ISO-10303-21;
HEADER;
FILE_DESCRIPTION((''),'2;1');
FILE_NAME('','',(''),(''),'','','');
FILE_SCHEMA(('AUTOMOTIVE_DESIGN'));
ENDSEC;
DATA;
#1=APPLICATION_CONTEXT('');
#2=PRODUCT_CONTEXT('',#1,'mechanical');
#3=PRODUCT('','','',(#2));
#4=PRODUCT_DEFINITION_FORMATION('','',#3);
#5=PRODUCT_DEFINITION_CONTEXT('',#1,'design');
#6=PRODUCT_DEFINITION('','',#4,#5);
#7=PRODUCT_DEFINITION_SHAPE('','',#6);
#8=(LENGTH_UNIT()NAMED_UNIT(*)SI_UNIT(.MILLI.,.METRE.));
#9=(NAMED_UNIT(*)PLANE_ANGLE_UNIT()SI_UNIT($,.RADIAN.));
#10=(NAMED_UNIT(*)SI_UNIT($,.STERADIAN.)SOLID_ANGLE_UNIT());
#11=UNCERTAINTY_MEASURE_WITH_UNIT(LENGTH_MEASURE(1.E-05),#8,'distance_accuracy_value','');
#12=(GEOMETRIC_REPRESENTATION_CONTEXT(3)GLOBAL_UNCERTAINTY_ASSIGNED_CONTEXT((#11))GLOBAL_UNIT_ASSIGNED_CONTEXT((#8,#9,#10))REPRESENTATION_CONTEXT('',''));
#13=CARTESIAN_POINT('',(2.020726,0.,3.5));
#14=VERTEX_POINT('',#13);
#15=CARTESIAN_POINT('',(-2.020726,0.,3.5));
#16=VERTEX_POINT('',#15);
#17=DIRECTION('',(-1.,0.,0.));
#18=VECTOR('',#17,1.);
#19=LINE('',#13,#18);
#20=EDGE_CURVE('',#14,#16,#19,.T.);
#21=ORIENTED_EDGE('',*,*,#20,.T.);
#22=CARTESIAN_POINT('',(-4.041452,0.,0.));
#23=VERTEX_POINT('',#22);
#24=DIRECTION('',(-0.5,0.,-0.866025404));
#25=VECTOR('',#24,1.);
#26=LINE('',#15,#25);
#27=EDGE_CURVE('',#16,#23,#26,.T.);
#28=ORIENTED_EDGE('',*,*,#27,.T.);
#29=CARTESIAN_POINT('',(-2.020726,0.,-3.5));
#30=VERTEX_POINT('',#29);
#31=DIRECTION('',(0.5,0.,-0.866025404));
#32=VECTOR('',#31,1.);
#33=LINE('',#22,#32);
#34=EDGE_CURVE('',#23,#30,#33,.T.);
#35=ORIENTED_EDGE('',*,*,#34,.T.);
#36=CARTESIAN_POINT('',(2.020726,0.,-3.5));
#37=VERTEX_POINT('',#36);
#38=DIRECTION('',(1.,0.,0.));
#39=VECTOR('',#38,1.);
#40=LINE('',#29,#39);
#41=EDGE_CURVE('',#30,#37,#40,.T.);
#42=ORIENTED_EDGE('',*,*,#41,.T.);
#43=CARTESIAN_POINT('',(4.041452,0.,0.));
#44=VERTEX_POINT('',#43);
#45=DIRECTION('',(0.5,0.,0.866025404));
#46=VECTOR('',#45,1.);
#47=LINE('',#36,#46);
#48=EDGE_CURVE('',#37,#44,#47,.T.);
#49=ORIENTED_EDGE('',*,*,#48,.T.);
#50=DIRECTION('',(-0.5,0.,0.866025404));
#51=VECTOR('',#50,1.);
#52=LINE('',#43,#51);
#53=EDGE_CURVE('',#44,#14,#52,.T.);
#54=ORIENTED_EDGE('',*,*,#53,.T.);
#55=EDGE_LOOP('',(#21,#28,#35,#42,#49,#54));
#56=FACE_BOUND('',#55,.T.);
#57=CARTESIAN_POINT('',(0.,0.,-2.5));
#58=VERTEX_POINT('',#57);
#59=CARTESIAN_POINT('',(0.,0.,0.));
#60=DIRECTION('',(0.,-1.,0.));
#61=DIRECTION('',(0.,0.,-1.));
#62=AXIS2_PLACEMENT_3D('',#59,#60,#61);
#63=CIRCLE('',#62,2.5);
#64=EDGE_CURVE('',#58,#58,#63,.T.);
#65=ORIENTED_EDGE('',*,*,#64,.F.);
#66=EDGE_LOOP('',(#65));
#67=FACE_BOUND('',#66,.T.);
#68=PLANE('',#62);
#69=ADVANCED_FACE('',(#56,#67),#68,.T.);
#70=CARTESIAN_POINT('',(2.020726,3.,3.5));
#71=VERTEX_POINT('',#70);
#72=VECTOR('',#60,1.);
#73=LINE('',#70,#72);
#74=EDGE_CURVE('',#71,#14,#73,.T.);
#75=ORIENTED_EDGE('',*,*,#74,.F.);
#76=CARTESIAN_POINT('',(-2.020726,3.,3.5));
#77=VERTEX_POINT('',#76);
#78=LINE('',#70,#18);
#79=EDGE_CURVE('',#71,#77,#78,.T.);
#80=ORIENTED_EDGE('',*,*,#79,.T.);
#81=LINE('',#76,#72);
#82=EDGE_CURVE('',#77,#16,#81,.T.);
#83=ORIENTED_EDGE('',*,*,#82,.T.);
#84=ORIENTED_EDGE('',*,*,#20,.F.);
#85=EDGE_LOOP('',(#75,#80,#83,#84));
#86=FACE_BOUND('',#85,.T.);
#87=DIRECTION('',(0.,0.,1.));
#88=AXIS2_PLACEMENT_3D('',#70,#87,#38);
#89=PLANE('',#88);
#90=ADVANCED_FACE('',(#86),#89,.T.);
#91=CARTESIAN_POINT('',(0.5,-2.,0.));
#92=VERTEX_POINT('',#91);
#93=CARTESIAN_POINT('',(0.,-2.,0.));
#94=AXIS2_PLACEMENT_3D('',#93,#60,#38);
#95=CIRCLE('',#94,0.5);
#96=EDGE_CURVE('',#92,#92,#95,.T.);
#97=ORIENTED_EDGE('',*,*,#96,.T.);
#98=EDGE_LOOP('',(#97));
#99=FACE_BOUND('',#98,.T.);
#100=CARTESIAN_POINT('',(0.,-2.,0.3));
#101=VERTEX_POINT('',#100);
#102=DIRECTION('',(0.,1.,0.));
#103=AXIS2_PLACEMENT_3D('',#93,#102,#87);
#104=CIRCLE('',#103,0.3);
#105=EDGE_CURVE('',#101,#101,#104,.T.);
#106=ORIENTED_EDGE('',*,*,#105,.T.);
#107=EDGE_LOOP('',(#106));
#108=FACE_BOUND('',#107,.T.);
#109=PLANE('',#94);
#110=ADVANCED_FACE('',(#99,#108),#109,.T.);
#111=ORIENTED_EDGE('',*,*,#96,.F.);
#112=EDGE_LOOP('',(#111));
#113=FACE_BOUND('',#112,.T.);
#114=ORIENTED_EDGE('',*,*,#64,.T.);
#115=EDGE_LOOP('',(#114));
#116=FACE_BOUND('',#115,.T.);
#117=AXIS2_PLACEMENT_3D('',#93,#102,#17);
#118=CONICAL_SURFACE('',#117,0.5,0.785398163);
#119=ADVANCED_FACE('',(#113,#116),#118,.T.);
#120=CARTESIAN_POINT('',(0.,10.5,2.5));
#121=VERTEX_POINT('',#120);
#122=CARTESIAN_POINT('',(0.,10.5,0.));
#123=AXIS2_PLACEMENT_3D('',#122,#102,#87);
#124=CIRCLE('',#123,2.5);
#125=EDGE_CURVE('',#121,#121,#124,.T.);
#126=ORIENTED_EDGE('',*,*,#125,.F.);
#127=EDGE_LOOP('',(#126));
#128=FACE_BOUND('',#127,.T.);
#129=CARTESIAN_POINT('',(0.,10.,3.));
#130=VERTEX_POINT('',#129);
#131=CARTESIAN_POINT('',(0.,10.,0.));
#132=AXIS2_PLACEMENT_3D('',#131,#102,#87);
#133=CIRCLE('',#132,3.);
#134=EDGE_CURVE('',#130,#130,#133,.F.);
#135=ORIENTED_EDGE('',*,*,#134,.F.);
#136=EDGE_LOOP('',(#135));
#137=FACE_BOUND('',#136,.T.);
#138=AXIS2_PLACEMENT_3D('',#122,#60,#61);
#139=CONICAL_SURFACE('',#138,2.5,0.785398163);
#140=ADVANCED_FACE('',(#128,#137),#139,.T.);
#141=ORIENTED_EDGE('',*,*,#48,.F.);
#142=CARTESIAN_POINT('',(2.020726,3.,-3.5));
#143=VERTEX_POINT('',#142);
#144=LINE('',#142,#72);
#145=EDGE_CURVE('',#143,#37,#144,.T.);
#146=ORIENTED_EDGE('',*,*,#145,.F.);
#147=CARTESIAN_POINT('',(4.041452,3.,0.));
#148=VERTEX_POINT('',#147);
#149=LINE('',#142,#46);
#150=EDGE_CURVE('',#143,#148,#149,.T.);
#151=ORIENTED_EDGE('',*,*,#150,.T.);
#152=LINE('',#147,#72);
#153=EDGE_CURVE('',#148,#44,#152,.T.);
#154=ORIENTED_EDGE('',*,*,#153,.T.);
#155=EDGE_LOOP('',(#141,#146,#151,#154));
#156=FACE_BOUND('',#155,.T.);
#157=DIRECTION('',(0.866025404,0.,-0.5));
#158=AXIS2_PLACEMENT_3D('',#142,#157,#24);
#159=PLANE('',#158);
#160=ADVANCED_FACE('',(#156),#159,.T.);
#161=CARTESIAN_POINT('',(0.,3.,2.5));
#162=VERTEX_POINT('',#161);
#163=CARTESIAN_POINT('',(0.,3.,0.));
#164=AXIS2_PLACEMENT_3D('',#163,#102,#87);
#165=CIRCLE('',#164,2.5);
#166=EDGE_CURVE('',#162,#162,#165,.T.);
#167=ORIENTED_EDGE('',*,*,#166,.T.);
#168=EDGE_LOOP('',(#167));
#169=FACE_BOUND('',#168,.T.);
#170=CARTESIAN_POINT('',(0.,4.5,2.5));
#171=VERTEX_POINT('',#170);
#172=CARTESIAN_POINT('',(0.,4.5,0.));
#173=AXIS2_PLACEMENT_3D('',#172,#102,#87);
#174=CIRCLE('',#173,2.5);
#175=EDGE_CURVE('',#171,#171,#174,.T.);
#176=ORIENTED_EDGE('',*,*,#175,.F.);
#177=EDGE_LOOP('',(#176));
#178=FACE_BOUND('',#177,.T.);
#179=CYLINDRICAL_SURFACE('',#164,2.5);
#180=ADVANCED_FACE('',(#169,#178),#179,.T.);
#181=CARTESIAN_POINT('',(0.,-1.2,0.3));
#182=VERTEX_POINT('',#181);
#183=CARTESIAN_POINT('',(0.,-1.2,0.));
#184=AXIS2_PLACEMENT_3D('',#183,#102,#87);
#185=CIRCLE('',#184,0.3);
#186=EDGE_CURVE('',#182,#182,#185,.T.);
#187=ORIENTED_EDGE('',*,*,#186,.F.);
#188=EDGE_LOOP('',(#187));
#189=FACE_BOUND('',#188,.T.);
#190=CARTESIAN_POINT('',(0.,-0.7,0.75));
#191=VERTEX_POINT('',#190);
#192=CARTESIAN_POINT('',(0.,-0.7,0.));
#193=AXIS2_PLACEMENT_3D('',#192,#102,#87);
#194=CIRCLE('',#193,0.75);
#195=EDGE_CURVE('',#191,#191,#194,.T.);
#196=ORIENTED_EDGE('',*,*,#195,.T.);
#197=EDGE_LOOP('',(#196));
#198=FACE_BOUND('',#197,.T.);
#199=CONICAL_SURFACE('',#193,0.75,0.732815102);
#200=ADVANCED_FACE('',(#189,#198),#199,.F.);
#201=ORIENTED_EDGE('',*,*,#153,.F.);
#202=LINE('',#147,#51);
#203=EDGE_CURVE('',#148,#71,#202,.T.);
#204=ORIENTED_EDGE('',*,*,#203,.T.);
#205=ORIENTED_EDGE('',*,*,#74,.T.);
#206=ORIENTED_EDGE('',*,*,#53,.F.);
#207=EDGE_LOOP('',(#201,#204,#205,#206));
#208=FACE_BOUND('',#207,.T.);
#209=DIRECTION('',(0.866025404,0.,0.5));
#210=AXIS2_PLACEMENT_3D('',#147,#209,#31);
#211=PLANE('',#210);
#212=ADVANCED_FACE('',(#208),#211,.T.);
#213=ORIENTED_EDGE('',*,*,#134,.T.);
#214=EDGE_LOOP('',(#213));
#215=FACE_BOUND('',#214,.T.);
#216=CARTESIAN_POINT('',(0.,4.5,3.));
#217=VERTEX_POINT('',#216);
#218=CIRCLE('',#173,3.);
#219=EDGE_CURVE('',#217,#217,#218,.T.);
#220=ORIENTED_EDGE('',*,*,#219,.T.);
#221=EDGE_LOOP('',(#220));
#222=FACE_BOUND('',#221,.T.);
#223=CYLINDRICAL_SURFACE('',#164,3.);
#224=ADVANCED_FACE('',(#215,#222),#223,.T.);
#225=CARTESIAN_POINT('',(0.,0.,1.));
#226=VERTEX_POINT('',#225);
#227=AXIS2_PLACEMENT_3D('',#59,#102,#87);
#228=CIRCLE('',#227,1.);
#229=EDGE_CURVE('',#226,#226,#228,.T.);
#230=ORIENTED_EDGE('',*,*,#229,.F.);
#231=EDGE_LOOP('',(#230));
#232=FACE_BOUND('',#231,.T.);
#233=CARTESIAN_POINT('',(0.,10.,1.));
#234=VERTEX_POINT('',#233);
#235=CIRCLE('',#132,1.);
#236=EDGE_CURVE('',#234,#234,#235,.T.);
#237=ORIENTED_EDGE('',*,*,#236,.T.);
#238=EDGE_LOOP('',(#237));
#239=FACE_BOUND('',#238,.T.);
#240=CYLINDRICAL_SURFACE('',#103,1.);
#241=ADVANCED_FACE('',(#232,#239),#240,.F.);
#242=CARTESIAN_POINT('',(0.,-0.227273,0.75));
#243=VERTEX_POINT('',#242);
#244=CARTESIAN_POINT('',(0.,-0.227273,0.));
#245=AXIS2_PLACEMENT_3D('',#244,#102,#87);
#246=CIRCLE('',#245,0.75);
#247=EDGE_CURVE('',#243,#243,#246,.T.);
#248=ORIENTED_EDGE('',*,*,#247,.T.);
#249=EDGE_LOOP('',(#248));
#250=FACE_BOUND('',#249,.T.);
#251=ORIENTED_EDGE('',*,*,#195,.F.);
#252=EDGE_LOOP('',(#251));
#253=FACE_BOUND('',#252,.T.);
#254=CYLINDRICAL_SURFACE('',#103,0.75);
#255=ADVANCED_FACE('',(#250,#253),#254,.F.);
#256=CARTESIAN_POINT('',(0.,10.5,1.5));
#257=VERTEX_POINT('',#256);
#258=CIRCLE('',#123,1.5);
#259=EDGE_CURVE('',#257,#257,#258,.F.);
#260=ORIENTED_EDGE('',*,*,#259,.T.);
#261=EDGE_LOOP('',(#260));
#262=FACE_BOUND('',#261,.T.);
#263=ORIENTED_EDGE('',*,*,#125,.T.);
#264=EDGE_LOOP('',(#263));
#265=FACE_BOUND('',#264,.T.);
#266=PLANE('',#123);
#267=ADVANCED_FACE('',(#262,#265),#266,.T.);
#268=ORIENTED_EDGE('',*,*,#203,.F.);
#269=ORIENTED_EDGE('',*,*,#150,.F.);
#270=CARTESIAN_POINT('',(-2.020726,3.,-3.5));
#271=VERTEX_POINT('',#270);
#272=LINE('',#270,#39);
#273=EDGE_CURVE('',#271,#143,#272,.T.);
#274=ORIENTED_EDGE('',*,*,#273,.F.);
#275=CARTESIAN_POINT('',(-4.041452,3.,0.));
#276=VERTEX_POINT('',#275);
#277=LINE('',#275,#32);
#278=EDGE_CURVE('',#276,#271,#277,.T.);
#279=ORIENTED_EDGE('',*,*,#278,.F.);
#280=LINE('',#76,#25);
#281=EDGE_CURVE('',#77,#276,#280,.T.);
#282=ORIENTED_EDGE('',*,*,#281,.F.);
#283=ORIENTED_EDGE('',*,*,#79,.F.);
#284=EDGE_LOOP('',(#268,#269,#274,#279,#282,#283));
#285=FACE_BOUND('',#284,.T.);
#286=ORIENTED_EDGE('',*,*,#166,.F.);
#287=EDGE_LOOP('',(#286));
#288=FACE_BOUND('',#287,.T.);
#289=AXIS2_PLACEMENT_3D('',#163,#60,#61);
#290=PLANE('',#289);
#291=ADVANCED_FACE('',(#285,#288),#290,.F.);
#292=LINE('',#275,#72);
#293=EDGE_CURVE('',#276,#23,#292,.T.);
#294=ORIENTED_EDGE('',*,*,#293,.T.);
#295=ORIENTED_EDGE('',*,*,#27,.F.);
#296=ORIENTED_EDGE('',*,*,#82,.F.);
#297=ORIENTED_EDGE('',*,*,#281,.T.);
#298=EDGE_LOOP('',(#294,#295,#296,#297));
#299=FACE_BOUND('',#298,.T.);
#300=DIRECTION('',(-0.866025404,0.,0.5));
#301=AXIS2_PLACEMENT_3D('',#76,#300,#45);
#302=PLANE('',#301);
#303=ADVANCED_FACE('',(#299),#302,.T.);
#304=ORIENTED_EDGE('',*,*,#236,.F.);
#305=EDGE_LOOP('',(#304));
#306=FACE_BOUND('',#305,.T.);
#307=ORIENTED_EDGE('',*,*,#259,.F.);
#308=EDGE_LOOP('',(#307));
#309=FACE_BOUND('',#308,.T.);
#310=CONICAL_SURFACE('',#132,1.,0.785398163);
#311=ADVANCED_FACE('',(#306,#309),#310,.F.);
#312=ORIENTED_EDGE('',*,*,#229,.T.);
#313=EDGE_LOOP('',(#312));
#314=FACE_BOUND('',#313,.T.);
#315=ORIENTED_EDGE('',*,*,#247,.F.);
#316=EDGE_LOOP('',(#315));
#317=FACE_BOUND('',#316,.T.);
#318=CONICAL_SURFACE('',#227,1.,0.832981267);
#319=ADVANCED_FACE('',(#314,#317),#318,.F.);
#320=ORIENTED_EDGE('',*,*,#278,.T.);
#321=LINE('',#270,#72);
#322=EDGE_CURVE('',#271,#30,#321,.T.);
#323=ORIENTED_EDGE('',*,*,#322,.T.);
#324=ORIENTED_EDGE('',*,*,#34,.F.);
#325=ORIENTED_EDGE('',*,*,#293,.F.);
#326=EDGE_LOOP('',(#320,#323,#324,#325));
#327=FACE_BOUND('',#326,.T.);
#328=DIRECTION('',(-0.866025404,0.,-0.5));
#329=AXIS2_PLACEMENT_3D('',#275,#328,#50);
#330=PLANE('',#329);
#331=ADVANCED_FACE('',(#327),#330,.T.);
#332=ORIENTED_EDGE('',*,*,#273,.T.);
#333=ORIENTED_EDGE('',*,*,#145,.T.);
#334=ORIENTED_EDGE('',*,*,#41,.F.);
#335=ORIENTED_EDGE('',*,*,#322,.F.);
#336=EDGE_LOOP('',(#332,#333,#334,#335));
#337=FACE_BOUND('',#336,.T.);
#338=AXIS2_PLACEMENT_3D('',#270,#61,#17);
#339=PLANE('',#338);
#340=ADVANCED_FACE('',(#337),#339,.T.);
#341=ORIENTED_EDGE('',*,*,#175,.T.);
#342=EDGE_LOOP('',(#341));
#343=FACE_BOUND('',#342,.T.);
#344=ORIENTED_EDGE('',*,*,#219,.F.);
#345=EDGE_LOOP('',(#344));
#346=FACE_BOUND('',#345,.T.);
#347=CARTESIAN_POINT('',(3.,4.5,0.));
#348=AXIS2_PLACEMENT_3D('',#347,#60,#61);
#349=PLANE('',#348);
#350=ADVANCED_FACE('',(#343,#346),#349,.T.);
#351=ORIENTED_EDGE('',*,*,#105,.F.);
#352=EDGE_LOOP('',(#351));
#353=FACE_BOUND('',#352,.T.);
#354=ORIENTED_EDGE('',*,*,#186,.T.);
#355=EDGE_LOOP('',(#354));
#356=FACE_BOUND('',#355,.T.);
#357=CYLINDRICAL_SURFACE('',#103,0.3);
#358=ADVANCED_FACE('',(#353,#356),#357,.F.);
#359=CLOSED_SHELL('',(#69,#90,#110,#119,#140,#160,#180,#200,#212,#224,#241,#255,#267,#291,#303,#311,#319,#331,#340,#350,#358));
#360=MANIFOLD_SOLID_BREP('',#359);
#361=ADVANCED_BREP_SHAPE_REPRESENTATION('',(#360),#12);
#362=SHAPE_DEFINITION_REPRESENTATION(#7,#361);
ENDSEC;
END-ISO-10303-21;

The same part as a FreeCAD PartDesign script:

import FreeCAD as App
import Part
import Sketcher

V = App.Vector
Q = App.Units.Quantity


def edges_at(feature, points):
    """Names of the edges that pass closest to the given points."""
    edges = feature.Shape.Edges
    near = lambda p: min(range(len(edges)), key=lambda i: edges[i].distToShape(Part.Vertex(*p))[0])
    return sorted({f"Edge{near(p) + 1}" for p in points})


def add_polygon(sketch, points):
    """Adds a closed chain of lines whose ends are joined by coincident constraints."""
    first, n = sketch.GeometryCount, len(points)
    for a, b in zip(points, points[1:] + points[:1]):
        sketch.addGeometry(Part.LineSegment(App.Vector(*a, 0), App.Vector(*b, 0)), False)
    for i in range(n):
        sketch.addConstraint(Sketcher.Constraint("Coincident", first + i, 2, first + (i + 1) % n, 1))

doc = App.newDocument("Part")
body = doc.addObject("PartDesign::Body", "Body")

sketch1 = doc.addObject("Sketcher::SketchObject", "Sketch")
body.addObject(sketch1)
sketch1.AttachmentSupport = (doc.XZ_Plane, [""])
sketch1.MapMode = "FlatFace"
add_polygon(sketch1, [(-2, 3.5), (-4, 0), (-2, -3.5), (2, -3.5), (4, 0), (2, 3.5)])
sketch1.addConstraint([
    Sketcher.Constraint("Horizontal", 2),
    Sketcher.Constraint("Horizontal", 5),
    Sketcher.Constraint("Symmetric", 0, 2, 3, 2, -1, 1),
    Sketcher.Constraint("Symmetric", 1, 2, 4, 2, -1, 1),
    Sketcher.Constraint("PointOnObject", 0, 2, -1),
    Sketcher.Constraint("Parallel", 0, 3),
    Sketcher.Constraint("Vertical", 2, 2, 4, 2),
    Sketcher.Constraint("Angle", 0, Q("-120 deg")),
    Sketcher.Constraint("DistanceY", 2, 2, 4, 2, 7.0),
    Sketcher.Constraint("DistanceX", 2, 1, 2, 2, 4.041452),
])
pad1 = doc.addObject("PartDesign::Pad", "Pad")
body.addObject(pad1)
pad1.Profile = sketch1
pad1.Length = 3
pad1.Reversed = True

sketch2 = doc.addObject("Sketcher::SketchObject", "Sketch001")
body.addObject(sketch2)
sketch2.AttachmentSupport = (doc.XY_Plane, [""])
sketch2.MapMode = "FlatFace"
add_polygon(sketch2, [(2.5, 3), (0, 3), (0, 10.5), (3, 10.5), (3, 4.5), (2.5, 4.5)])
sketch2.addConstraint([
    Sketcher.Constraint("Horizontal", 0),
    Sketcher.Constraint("Vertical", 1),
    Sketcher.Constraint("Horizontal", 2),
    Sketcher.Constraint("Vertical", 3),
    Sketcher.Constraint("Horizontal", 4),
    Sketcher.Constraint("Vertical", 5),
    Sketcher.Constraint("PointOnObject", 0, 2, -2),
    Sketcher.Constraint("DistanceX", 2, 1, 2, 2, 3.0),
    Sketcher.Constraint("DistanceY", 3, 2, 3, 1, 6.0),
    Sketcher.Constraint("DistanceX", 0, 2, 0, 1, 2.5),
    Sketcher.Constraint("DistanceY", 1, 1, 1, 2, 7.5),
    Sketcher.Constraint("DistanceY", -1, 1, 0, 2, 3.0),
])
revolution = doc.addObject("PartDesign::Revolution", "Revolution")
body.addObject(revolution)
revolution.Profile = sketch2
revolution.ReferenceAxis = (sketch2, ["V_Axis"])
revolution.Angle = 360

sketch3 = doc.addObject("Sketcher::SketchObject", "Sketch002")
body.addObject(sketch3)
sketch3.AttachmentSupport = (doc.XY_Plane, [""])
sketch3.MapMode = "FlatFace"
add_polygon(sketch3, [(2.5, 0), (0, 0), (0, -2), (0.5, -2)])
sketch3.addConstraint([
    Sketcher.Constraint("Horizontal", 0),
    Sketcher.Constraint("Vertical", 1),
    Sketcher.Constraint("Horizontal", 2),
    Sketcher.Constraint("Coincident", 0, 2, -1, 1),
    Sketcher.Constraint("DistanceY", 1, 2, 1, 1, 2.0),
    Sketcher.Constraint("Angle", 3, Q("45 deg")),
    Sketcher.Constraint("DistanceX", 0, 2, 0, 1, 2.5),
])
revolution2 = doc.addObject("PartDesign::Revolution", "Revolution001")
body.addObject(revolution2)
revolution2.Profile = sketch3
revolution2.ReferenceAxis = (sketch3, ["V_Axis"])
revolution2.Angle = 360

sketch4 = doc.addObject("Sketcher::SketchObject", "Sketch003")
body.addObject(sketch4)
sketch4.AttachmentSupport = (doc.XY_Plane, [""])
sketch4.MapMode = "FlatFace"
add_polygon(sketch4, [(0.3, -2), (0, -2), (0, 10.5), (1, 10.5), (1, 0), (0.75, -0.23), (0.75, -0.7), (0.3, -1.2)])
sketch4.addConstraint([
    Sketcher.Constraint("Horizontal", 0),
    Sketcher.Constraint("Vertical", 1),
    Sketcher.Constraint("Horizontal", 2),
    Sketcher.Constraint("Vertical", 3),
    Sketcher.Constraint("Vertical", 5),
    Sketcher.Constraint("Vertical", 7),
    Sketcher.Constraint("PointOnObject", 0, 2, -2),
    Sketcher.Constraint("PointOnObject", 3, 2, -1),
    Sketcher.Constraint("DistanceX", 2, 1, 2, 2, 1.0),
    Sketcher.Constraint("DistanceX", 0, 2, 0, 1, 0.3),
    Sketcher.Constraint("DistanceY", 1, 1, 1, 2, 12.5),
    Sketcher.Constraint("DistanceY", 3, 2, 3, 1, 10.5),
    Sketcher.Constraint("DistanceY", 7, 2, 7, 1, 0.8),
    Sketcher.Constraint("DistanceY", 5, 2, -1, 1, 0.7),
    Sketcher.Constraint("DistanceX", -1, 1, 4, 2, 0.75),
    Sketcher.Constraint("DistanceY", 5, 2, 5, 1, 0.472727),
])
groove = doc.addObject("PartDesign::Groove", "Groove")
body.addObject(groove)
groove.Profile = sketch4
groove.ReferenceAxis = (sketch4, ["V_Axis"])
groove.Angle = 360
doc.recompute()

chamfer = doc.addObject("PartDesign::Chamfer", "Chamfer")
body.addObject(chamfer)
chamfer.Base = (groove, edges_at(groove, [(-3, 10.5, 0), (-1, 10.5, 0)]))
chamfer.Size = 0.5

doc.recompute()
